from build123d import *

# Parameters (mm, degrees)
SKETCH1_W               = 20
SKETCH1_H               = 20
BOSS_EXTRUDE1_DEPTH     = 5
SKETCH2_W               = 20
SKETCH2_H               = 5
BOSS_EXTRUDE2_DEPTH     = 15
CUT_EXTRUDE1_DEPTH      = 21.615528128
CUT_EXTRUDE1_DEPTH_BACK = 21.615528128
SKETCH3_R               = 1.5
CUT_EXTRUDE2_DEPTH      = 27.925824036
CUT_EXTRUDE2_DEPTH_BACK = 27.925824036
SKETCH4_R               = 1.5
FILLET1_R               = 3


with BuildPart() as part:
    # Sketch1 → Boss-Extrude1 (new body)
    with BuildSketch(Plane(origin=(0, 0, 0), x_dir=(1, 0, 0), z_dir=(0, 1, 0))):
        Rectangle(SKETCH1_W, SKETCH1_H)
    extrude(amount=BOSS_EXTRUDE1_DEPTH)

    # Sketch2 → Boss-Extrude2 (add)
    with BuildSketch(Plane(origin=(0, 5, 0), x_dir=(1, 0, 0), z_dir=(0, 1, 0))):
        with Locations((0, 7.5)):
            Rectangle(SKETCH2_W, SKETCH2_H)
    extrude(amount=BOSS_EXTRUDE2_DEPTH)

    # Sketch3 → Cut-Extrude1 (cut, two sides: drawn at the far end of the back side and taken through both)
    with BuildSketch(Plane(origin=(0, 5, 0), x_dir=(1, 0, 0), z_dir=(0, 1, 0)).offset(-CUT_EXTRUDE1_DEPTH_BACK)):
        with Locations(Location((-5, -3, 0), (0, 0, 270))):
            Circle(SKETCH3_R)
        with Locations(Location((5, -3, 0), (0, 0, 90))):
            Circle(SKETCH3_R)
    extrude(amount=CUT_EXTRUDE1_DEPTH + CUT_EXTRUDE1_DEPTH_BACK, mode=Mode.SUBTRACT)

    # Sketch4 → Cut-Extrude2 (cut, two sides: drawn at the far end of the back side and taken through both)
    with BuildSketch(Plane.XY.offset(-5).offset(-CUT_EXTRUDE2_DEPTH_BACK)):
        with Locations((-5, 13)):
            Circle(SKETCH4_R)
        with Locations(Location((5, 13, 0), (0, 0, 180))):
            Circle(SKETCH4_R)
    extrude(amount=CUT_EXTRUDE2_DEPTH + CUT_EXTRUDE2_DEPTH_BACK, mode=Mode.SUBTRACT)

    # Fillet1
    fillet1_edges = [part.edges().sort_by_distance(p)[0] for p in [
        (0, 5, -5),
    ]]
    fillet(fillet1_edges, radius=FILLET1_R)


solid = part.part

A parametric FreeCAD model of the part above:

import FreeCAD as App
import Part
import Sketcher
from FreeCAD import Vector


def edges_at(feature, points):
    """Names of the edges that pass closest to the given points."""
    edges = feature.Shape.Edges
    near = lambda p: min(range(len(edges)), key=lambda i: edges[i].distToShape(Part.Vertex(*p))[0])
    return sorted({f"Edge{near(p) + 1}" for p in points})

doc = App.newDocument("Part")
body = doc.addObject("PartDesign::Body", "Body")

sketch1 = body.newObject("Sketcher::SketchObject", "Sketch")
sketch1.AttachmentSupport = (doc.getObject("XZ_Plane"), [""])
sketch1.MapMode = "FlatFace"
sketch1.addGeometry(Part.LineSegment(Vector(-10, -10, 0), Vector(-10, 10, 0)), False)
sketch1.addGeometry(Part.LineSegment(Vector(-10, 10, 0), Vector(10, 10, 0)), False)
sketch1.addGeometry(Part.LineSegment(Vector(10, 10, 0), Vector(10, -10, 0)), False)
sketch1.addGeometry(Part.LineSegment(Vector(10, -10, 0), Vector(-10, -10, 0)), False)
sketch1.addConstraint(Sketcher.Constraint("Coincident", 0, 2, 1, 1))
sketch1.addConstraint(Sketcher.Constraint("Coincident", 1, 2, 2, 1))
sketch1.addConstraint(Sketcher.Constraint("Coincident", 2, 2, 3, 1))
sketch1.addConstraint(Sketcher.Constraint("Coincident", 3, 2, 0, 1))
sketch1.addConstraint(Sketcher.Constraint("Vertical", 0))
sketch1.addConstraint(Sketcher.Constraint("Horizontal", 1))
sketch1.addConstraint(Sketcher.Constraint("Vertical", 2))
sketch1.addConstraint(Sketcher.Constraint("Horizontal", 3))
sketch1.addConstraint(Sketcher.Constraint("Symmetric", 0, 2, 2, 2, -1, 1))
sketch1.addConstraint(Sketcher.Constraint("Equal", 3, 0))
sketch1.addConstraint(Sketcher.Constraint("DistanceX", 1, 1, 1, 2, 20.0))
pad1 = body.newObject("PartDesign::Pad", "Pad")
pad1.Profile = sketch1
pad1.Length = 5
pad1.Reversed = True

sketch2 = body.newObject("Sketcher::SketchObject", "Sketch001")
sketch2.AttachmentSupport = (doc.getObject("XZ_Plane"), [""])
sketch2.MapMode = "FlatFace"
sketch2.AttachmentOffset = App.Placement(Vector(0, 0, -5), App.Rotation())
sketch2.addGeometry(Part.LineSegment(Vector(-10, -10, 0), Vector(-10, -5, 0)), False)
sketch2.addGeometry(Part.LineSegment(Vector(-10, -5, 0), Vector(10, -5, 0)), False)
sketch2.addGeometry(Part.LineSegment(Vector(10, -5, 0), Vector(10, -10, 0)), False)
sketch2.addGeometry(Part.LineSegment(Vector(10, -10, 0), Vector(-10, -10, 0)), False)
sketch2.addConstraint(Sketcher.Constraint("Coincident", 0, 2, 1, 1))
sketch2.addConstraint(Sketcher.Constraint("Coincident", 1, 2, 2, 1))
sketch2.addConstraint(Sketcher.Constraint("Coincident", 2, 2, 3, 1))
sketch2.addConstraint(Sketcher.Constraint("Coincident", 3, 2, 0, 1))
sketch2.addConstraint(Sketcher.Constraint("Vertical", 0))
sketch2.addConstraint(Sketcher.Constraint("Horizontal", 1))
sketch2.addConstraint(Sketcher.Constraint("Vertical", 2))
sketch2.addConstraint(Sketcher.Constraint("Horizontal", 3))
sketch2.addConstraint(Sketcher.Constraint("DistanceX", 1, 1, 1, 2, 20.0))
sketch2.addConstraint(Sketcher.Constraint("DistanceY", 0, 1, 0, 2, 5.0))
sketch2.addConstraint(Sketcher.Constraint("DistanceX", 0, 2, -1, 1, 10.0))
sketch2.addConstraint(Sketcher.Constraint("DistanceY", 0, 2, -1, 1, 5.0))
pad2 = body.newObject("PartDesign::Pad", "Pad001")
pad2.Profile = sketch2
pad2.Length = 15
pad2.Reversed = True

sketch3 = body.newObject("Sketcher::SketchObject", "Sketch002")
sketch3.AttachmentSupport = (doc.getObject("XZ_Plane"), [""])
sketch3.MapMode = "FlatFace"
sketch3.AttachmentOffset = App.Placement(Vector(0, 0, -5), App.Rotation())
sketch3.addGeometry(Part.Circle(Vector(-5, 3, 0), Vector(0, 0, 1), 1.5), False)
sketch3.addGeometry(Part.Circle(Vector(5, 3, 0), Vector(0, 0, 1), 1.5), False)
sketch3.addConstraint(Sketcher.Constraint("Equal", 0, 1))
sketch3.addConstraint(Sketcher.Constraint("Symmetric", 0, 3, 1, 3, -2))
sketch3.addConstraint(Sketcher.Constraint("Diameter", 0, 3.0))
sketch3.addConstraint(Sketcher.Constraint("DistanceX", 0, 3, -1, 1, 5.0))
sketch3.addConstraint(Sketcher.Constraint("DistanceY", -1, 1, 0, 3, 3.0))
pocket1 = body.newObject("PartDesign::Pocket", "Pocket")
pocket1.Profile = sketch3
pocket1.Type = "ThroughAll"
pocket1.Midplane = True

sketch4 = body.newObject("Sketcher::SketchObject", "Sketch003")
sketch4.AttachmentSupport = (doc.getObject("XY_Plane"), [""])
sketch4.MapMode = "FlatFace"
sketch4.AttachmentOffset = App.Placement(Vector(0, 0, -5), App.Rotation())
sketch4.addGeometry(Part.Circle(Vector(-5, 13, 0), Vector(0, 0, 1), 1.5), False)
sketch4.addGeometry(Part.Circle(Vector(5, 13, 0), Vector(0, 0, 1), 1.5), False)
sketch4.addConstraint(Sketcher.Constraint("Equal", 0, 1))
sketch4.addConstraint(Sketcher.Constraint("Symmetric", 0, 3, 1, 3, -2))
sketch4.addConstraint(Sketcher.Constraint("Diameter", 0, 3.0))
sketch4.addConstraint(Sketcher.Constraint("DistanceX", 0, 3, -1, 1, 5.0))
sketch4.addConstraint(Sketcher.Constraint("DistanceY", -1, 1, 0, 3, 13.0))
pocket2 = body.newObject("PartDesign::Pocket", "Pocket001")
pocket2.Profile = sketch4
pocket2.Type = "ThroughAll"
pocket2.Midplane = True
doc.recompute()

fillet = body.newObject("PartDesign::Fillet", "Fillet")
fillet.Base = (pocket2, edges_at(pocket2, [(0, 5, -5)]))
fillet.Radius = 3

doc.recompute()
